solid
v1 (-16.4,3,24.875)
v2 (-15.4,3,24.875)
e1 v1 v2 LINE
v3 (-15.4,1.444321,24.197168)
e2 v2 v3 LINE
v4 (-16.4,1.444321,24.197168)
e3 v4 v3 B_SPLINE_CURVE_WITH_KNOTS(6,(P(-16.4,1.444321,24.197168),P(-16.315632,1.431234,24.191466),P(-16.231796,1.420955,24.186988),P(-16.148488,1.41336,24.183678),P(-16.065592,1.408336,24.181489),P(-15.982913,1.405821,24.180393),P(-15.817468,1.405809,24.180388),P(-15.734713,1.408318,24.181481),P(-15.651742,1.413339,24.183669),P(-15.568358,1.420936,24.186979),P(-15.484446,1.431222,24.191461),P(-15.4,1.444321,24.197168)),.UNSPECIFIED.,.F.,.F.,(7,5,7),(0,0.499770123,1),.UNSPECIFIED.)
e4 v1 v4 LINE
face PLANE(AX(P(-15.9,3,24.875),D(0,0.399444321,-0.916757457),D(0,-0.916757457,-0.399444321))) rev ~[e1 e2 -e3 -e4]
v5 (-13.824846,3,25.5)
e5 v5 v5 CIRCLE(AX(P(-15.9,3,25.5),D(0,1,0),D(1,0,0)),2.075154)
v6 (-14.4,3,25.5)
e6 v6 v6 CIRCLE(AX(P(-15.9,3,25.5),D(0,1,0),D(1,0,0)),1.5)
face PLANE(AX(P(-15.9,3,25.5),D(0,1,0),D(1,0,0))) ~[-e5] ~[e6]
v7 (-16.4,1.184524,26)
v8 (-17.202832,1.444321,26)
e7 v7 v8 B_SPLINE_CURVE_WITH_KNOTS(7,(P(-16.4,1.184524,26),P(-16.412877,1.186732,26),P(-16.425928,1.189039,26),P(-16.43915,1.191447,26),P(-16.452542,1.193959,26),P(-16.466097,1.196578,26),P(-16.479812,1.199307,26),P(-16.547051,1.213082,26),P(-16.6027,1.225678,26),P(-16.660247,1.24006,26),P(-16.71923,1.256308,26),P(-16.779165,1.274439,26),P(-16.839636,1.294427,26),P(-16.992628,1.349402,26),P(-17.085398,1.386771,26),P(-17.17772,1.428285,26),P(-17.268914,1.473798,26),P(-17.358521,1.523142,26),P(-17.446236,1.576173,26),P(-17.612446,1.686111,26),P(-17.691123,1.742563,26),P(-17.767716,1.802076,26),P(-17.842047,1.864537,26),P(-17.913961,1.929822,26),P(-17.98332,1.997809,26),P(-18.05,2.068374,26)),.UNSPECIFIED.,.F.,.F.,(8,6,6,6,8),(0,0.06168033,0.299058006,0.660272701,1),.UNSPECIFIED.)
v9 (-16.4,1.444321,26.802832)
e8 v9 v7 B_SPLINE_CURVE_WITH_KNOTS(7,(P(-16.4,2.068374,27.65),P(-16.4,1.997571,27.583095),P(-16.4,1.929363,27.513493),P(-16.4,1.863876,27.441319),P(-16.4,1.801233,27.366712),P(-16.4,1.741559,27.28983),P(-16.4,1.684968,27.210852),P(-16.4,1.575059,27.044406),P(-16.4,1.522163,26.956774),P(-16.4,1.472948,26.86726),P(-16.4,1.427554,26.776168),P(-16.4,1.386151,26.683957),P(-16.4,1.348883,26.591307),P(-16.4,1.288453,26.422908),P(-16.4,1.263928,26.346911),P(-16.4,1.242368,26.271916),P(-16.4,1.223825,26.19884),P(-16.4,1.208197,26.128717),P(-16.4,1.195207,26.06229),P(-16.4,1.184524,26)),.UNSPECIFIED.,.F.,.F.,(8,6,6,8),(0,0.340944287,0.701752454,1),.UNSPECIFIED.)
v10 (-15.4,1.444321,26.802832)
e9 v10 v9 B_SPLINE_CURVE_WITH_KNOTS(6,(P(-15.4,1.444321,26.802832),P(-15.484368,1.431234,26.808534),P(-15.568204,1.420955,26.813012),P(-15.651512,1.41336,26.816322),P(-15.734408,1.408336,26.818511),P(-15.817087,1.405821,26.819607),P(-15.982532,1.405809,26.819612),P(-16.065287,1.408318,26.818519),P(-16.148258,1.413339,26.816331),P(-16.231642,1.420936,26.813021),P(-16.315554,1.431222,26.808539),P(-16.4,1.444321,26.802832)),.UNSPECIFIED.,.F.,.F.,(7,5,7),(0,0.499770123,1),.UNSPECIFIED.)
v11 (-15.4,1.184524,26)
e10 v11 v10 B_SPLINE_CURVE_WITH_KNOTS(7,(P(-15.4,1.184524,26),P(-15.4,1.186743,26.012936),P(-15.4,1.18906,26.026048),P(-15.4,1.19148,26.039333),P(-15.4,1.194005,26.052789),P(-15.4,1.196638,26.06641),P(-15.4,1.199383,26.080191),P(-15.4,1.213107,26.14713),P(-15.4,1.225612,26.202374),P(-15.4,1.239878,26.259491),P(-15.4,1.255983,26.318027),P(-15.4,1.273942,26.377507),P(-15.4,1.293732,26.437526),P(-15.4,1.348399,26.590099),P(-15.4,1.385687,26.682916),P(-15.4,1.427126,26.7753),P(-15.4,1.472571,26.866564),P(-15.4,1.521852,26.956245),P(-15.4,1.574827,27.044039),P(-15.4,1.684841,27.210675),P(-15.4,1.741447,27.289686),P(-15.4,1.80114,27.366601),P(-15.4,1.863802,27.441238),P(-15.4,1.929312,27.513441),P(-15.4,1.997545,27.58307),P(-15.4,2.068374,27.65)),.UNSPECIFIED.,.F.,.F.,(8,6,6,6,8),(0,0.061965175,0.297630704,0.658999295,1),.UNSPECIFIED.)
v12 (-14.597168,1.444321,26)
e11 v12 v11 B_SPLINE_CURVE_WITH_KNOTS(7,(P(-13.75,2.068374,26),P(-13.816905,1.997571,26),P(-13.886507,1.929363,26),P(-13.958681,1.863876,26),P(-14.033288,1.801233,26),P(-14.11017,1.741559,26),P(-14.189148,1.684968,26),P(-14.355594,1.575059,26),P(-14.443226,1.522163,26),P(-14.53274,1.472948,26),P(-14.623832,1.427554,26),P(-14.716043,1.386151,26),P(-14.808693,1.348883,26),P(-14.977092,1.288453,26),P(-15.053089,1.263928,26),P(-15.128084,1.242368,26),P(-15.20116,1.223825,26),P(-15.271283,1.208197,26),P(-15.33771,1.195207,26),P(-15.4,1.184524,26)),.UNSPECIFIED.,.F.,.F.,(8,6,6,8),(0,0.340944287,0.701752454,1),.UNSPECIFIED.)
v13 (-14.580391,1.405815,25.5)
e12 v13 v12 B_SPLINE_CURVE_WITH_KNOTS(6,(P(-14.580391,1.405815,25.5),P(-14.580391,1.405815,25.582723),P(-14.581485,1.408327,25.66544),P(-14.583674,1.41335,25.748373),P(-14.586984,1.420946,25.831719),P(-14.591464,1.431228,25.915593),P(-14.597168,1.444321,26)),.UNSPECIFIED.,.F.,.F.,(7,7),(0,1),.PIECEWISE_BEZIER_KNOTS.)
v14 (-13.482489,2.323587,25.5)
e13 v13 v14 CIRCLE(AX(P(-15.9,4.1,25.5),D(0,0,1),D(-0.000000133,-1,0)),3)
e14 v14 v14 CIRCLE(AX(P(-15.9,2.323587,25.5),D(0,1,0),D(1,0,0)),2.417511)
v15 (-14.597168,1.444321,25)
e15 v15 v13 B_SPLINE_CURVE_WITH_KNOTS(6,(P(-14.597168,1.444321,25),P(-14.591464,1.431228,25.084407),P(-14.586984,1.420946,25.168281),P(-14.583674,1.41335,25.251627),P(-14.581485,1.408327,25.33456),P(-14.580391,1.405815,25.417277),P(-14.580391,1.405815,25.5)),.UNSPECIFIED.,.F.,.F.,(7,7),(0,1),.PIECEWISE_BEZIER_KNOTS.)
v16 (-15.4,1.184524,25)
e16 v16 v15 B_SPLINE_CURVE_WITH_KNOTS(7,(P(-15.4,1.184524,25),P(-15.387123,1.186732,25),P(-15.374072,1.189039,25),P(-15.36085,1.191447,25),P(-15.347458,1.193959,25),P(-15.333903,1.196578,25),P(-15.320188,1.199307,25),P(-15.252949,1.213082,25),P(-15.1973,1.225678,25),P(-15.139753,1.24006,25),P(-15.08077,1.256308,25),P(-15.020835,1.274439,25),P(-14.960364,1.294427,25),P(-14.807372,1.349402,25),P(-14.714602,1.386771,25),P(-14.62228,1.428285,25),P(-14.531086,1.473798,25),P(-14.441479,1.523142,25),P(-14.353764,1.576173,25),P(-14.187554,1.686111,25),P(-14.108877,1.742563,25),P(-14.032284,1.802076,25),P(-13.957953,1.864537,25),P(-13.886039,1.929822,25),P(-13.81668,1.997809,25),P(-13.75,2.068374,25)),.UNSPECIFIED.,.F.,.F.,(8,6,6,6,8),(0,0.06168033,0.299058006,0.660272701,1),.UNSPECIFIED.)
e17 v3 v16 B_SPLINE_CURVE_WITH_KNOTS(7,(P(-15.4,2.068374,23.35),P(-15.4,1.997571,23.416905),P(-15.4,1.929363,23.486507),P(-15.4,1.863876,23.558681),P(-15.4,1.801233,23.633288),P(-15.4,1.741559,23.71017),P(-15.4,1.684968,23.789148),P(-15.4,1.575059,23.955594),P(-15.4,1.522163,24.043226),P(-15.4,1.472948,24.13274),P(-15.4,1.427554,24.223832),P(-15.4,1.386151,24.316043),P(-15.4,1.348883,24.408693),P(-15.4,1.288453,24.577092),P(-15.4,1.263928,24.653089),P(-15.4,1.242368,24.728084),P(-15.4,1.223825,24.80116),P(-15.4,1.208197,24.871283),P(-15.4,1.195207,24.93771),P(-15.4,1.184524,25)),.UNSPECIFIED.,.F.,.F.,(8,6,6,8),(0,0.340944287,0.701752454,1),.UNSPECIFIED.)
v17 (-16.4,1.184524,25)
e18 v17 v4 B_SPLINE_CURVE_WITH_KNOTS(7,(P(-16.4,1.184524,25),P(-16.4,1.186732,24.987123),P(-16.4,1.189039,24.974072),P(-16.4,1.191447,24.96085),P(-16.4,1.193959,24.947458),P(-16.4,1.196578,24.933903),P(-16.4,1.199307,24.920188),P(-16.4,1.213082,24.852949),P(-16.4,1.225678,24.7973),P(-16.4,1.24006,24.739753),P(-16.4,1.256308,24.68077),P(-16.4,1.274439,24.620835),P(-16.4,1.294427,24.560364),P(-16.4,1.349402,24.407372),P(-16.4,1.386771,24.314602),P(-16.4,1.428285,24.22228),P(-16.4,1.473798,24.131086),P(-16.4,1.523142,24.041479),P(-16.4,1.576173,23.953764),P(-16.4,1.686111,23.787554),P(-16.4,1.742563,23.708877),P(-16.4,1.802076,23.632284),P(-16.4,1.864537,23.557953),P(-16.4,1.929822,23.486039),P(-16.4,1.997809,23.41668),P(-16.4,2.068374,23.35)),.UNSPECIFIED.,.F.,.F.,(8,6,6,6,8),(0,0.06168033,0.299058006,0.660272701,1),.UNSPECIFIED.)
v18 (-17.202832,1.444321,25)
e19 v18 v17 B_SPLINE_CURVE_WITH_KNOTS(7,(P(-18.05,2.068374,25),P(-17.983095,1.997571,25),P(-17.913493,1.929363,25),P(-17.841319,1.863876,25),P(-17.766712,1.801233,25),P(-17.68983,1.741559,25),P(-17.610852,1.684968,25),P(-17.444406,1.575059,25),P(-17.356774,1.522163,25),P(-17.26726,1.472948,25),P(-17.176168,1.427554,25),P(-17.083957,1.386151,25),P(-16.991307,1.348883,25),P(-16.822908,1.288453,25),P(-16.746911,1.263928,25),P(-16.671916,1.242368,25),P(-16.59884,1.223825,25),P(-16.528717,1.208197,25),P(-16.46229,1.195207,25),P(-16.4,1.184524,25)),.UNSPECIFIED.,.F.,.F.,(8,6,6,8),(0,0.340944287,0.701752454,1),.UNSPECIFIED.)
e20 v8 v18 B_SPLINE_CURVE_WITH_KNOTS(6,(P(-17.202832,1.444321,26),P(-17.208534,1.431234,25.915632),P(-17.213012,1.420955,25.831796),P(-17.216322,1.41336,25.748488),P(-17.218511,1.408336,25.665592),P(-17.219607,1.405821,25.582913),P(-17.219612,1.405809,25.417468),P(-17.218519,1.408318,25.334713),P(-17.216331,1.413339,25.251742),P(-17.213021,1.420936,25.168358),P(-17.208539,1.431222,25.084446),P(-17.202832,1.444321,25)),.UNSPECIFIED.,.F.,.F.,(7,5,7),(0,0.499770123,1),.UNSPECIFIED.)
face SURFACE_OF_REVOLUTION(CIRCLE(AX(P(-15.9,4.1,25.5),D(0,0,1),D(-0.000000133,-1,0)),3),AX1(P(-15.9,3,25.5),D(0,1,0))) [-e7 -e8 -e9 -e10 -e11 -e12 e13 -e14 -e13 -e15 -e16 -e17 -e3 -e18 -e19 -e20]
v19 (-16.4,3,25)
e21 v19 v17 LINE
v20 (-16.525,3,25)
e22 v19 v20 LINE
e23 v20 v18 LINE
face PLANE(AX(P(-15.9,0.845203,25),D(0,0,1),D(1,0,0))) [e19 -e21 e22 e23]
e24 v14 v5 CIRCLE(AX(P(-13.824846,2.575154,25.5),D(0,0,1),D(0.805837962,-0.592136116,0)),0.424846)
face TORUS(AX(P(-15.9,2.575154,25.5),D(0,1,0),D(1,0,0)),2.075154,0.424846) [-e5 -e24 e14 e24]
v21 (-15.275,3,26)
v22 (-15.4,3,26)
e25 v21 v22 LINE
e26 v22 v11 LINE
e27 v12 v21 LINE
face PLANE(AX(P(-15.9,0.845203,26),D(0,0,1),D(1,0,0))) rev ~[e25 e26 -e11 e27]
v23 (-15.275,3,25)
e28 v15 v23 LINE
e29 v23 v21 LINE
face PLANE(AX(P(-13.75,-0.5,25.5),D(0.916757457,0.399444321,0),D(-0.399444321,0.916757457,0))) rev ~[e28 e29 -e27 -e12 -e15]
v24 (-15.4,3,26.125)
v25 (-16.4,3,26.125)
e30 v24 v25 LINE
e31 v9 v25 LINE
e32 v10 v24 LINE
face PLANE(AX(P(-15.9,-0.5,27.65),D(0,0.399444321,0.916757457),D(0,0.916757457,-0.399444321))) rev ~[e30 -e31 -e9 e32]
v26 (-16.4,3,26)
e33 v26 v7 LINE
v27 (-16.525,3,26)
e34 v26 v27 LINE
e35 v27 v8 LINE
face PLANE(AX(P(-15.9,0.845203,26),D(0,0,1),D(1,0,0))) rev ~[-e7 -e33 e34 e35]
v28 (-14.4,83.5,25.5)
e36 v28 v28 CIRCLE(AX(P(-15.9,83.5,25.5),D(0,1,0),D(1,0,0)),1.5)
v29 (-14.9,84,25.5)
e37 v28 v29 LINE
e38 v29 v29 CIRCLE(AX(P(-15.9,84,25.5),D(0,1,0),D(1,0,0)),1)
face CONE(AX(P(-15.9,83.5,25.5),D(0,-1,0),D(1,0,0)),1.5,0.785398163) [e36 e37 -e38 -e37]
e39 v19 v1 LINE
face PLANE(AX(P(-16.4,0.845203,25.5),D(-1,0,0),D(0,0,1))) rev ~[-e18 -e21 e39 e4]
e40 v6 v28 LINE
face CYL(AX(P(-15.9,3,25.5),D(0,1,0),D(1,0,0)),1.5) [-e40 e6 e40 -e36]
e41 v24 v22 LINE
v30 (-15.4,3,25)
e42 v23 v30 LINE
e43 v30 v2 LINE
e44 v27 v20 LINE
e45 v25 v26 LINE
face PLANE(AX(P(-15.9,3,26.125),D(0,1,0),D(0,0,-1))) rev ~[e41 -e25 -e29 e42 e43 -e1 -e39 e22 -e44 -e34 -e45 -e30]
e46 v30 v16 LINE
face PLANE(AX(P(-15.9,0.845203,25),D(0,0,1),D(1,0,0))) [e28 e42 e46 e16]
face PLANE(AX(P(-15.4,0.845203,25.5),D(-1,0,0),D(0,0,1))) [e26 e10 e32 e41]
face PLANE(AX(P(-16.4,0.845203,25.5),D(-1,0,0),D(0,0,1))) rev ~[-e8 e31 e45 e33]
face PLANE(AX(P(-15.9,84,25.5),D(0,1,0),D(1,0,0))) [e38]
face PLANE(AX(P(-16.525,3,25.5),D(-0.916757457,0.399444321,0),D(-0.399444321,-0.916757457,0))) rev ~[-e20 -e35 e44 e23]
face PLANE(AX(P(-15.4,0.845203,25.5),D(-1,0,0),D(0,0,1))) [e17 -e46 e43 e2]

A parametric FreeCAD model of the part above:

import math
import FreeCAD as App
import Part
import Sketcher
Q = App.Units.Quantity

doc = App.newDocument("Part")
body = doc.addObject("PartDesign::Body", "Body")

sketch1 = doc.addObject("Sketcher::SketchObject", "Sketch")
body.addObject(sketch1)
sketch1.AttachmentSupport = (doc.XY_Plane, [""])
sketch1.MapMode = "FlatFace"
sketch1.addGeometry([
    Part.LineSegment(App.Vector(-2.1, -3.5, 0), App.Vector(2.1, -3.5, 0)),
    Part.LineSegment(App.Vector(2.1, -3.5, 0), App.Vector(0.6, 0, 0)),
    Part.LineSegment(App.Vector(0.6, 0, 0), App.Vector(-0.6, 0, 0)),
    Part.LineSegment(App.Vector(-0.6, 0, 0), App.Vector(-2.1, -3.5, 0)),
], False)
sketch1.addConstraint([
    Sketcher.Constraint("Coincident", 0, 2, 1, 1),
    Sketcher.Constraint("Coincident", 1, 2, 2, 1),
    Sketcher.Constraint("Coincident", 2, 2, 3, 1),
    Sketcher.Constraint("Coincident", 3, 2, 0, 1),
    Sketcher.Constraint("Horizontal", 0),
    Sketcher.Constraint("Horizontal", 2),
    Sketcher.Constraint("Symmetric", 1, 2, 2, 2, -1, 1),
    Sketcher.Constraint("Equal", 1, 3),
    Sketcher.Constraint("DistanceX", 0, 1, 0, 2, Q("4.3 mm")),
    Sketcher.Constraint("DistanceX", 2, 2, 2, 1, Q("1.25 mm")),
    Sketcher.Constraint("DistanceY", 0, 2, -1, 1, Q("3.5 mm")),
])
pad1 = doc.addObject("PartDesign::Pad", "Pad")
body.addObject(pad1)
pad1.Profile = sketch1
pad1.Length = 1
pad1.Midplane = True
body2 = doc.addObject("PartDesign::Body", "Body001")
doc.recompute()

body.Placement = App.Placement(App.Vector(0, 0, 0), App.Rotation(App.Vector(0, -1, 0), 90))
boolean = doc.addObject("PartDesign::Boolean", "Boolean")
body2.addObject(boolean)
boolean.Type = "Fuse"
boolean.addObjects([body])
body3 = doc.addObject("PartDesign::Body", "Body002")

sketch2 = doc.addObject("Sketcher::SketchObject", "Sketch001")
body3.addObject(sketch2)
sketch2.AttachmentSupport = (doc.getObject("XY_Plane002"), [""])
sketch2.MapMode = "FlatFace"
sketch2.addGeometry([
    Part.LineSegment(App.Vector(-2.1, -3.5, 0), App.Vector(2.1, -3.5, 0)),
    Part.LineSegment(App.Vector(2.1, -3.5, 0), App.Vector(0.6, 0, 0)),
    Part.LineSegment(App.Vector(0.6, 0, 0), App.Vector(-0.6, 0, 0)),
    Part.LineSegment(App.Vector(-0.6, 0, 0), App.Vector(-2.1, -3.5, 0)),
], False)
sketch2.addConstraint([
    Sketcher.Constraint("Coincident", 0, 2, 1, 1),
    Sketcher.Constraint("Coincident", 1, 2, 2, 1),
    Sketcher.Constraint("Coincident", 2, 2, 3, 1),
    Sketcher.Constraint("Coincident", 3, 2, 0, 1),
    Sketcher.Constraint("Horizontal", 0),
    Sketcher.Constraint("Horizontal", 2),
    Sketcher.Constraint("Symmetric", 1, 2, 2, 2, -1, 1),
    Sketcher.Constraint("Equal", 1, 3),
    Sketcher.Constraint("DistanceX", 0, 1, 0, 2, Q("4.3 mm")),
    Sketcher.Constraint("DistanceX", 2, 2, 2, 1, Q("1.25 mm")),
    Sketcher.Constraint("DistanceY", 0, 2, -1, 1, Q("3.5 mm")),
])
pad2 = doc.addObject("PartDesign::Pad", "Pad001")
body3.addObject(pad2)
pad2.Profile = sketch2
pad2.Length = 1
pad2.Midplane = True
doc.recompute()

boolean2 = doc.addObject("PartDesign::Boolean", "Boolean001")
body3.addObject(boolean2)
boolean2.Type = "Fuse"
boolean2.addObjects([body2])
body4 = doc.addObject("PartDesign::Body", "Body003")

sketch3 = doc.addObject("Sketcher::SketchObject", "Sketch002")
body4.addObject(sketch3)
sketch3.AttachmentSupport = (doc.getObject("XY_Plane003"), [""])
sketch3.MapMode = "FlatFace"
sketch3.addGeometry([
    Part.LineSegment(App.Vector(1.5, 0, 0), App.Vector(1.5, 80.5, 0)),
    Part.LineSegment(App.Vector(1.5, 80.5, 0), App.Vector(1, 81, 0)),
    Part.LineSegment(App.Vector(1, 81, 0), App.Vector(0, 81, 0)),
    Part.LineSegment(App.Vector(0, 81, 0), App.Vector(0, -1.9, 0)),
    Part.ArcOfCircle(Part.Circle(App.Vector(0, 1.1, 0), App.Vector(0, 0, 1), 3), math.radians(-90), math.radians(-36)),
    Part.ArcOfCircle(Part.Circle(App.Vector(2.08, -0.42, 0), App.Vector(0, 0, 1), 0.42), math.radians(-36), math.radians(90)),
    Part.LineSegment(App.Vector(2.08, 0, 0), App.Vector(1.5, 0, 0)),
], False)
sketch3.addConstraint([
    Sketcher.Constraint("Coincident", 0, 2, 1, 1),
    Sketcher.Constraint("Coincident", 1, 2, 2, 1),
    Sketcher.Constraint("Coincident", 2, 2, 3, 1),
    Sketcher.Constraint("Coincident", 3, 2, 4, 1),
    Sketcher.Constraint("Tangent", 4, 2, 5, 1),
    Sketcher.Constraint("Tangent", 5, 2, 6, 1),
    Sketcher.Constraint("Coincident", 6, 2, 0, 1),
    Sketcher.Constraint("Vertical", 0),
    Sketcher.Constraint("Horizontal", 2),
    Sketcher.Constraint("Vertical", 3),
    Sketcher.Constraint("Horizontal", 6),
    Sketcher.Constraint("PointOnObject", 4, 3, -2),
    Sketcher.Constraint("PointOnObject", 2, 2, -2),
    Sketcher.Constraint("PointOnObject", 5, 2, -1),
    Sketcher.Constraint("Radius", 4, Q("3 mm")),
    Sketcher.Constraint("DistanceX", 2, 2, 2, 1, Q("1 mm")),
    Sketcher.Constraint("Angle", 1, Q("135 deg")),
    Sketcher.Constraint("DistanceY", 0, 1, 0, 2, Q("80.5 mm")),
    Sketcher.Constraint("DistanceY", 3, 2, 3, 1, Q("82.9 mm")),
    Sketcher.Constraint("DistanceY", -1, 1, 1, 2, Q("81 mm")),
    Sketcher.Constraint("Radius", 5, Q("0.424846 mm")),
])
revolution = doc.addObject("PartDesign::Revolution", "Revolution")
body4.addObject(revolution)
revolution.Profile = sketch3
revolution.ReferenceAxis = (sketch3, ["V_Axis"])
revolution.Angle = 360
doc.recompute()

boolean3 = doc.addObject("PartDesign::Boolean", "Boolean002")
body4.addObject(boolean3)
boolean3.Type = "Cut"
boolean3.addObjects([body3])
body5 = doc.addObject("PartDesign::Body", "Body004")
doc.recompute()

body4.Placement = App.Placement(App.Vector(-15.9, 3, 25.5), App.Rotation(App.Vector(0, 0, 1), 0))
boolean4 = doc.addObject("PartDesign::Boolean", "Boolean003")
body5.addObject(boolean4)
boolean4.Type = "Fuse"
boolean4.addObjects([body4])

doc.recompute()
